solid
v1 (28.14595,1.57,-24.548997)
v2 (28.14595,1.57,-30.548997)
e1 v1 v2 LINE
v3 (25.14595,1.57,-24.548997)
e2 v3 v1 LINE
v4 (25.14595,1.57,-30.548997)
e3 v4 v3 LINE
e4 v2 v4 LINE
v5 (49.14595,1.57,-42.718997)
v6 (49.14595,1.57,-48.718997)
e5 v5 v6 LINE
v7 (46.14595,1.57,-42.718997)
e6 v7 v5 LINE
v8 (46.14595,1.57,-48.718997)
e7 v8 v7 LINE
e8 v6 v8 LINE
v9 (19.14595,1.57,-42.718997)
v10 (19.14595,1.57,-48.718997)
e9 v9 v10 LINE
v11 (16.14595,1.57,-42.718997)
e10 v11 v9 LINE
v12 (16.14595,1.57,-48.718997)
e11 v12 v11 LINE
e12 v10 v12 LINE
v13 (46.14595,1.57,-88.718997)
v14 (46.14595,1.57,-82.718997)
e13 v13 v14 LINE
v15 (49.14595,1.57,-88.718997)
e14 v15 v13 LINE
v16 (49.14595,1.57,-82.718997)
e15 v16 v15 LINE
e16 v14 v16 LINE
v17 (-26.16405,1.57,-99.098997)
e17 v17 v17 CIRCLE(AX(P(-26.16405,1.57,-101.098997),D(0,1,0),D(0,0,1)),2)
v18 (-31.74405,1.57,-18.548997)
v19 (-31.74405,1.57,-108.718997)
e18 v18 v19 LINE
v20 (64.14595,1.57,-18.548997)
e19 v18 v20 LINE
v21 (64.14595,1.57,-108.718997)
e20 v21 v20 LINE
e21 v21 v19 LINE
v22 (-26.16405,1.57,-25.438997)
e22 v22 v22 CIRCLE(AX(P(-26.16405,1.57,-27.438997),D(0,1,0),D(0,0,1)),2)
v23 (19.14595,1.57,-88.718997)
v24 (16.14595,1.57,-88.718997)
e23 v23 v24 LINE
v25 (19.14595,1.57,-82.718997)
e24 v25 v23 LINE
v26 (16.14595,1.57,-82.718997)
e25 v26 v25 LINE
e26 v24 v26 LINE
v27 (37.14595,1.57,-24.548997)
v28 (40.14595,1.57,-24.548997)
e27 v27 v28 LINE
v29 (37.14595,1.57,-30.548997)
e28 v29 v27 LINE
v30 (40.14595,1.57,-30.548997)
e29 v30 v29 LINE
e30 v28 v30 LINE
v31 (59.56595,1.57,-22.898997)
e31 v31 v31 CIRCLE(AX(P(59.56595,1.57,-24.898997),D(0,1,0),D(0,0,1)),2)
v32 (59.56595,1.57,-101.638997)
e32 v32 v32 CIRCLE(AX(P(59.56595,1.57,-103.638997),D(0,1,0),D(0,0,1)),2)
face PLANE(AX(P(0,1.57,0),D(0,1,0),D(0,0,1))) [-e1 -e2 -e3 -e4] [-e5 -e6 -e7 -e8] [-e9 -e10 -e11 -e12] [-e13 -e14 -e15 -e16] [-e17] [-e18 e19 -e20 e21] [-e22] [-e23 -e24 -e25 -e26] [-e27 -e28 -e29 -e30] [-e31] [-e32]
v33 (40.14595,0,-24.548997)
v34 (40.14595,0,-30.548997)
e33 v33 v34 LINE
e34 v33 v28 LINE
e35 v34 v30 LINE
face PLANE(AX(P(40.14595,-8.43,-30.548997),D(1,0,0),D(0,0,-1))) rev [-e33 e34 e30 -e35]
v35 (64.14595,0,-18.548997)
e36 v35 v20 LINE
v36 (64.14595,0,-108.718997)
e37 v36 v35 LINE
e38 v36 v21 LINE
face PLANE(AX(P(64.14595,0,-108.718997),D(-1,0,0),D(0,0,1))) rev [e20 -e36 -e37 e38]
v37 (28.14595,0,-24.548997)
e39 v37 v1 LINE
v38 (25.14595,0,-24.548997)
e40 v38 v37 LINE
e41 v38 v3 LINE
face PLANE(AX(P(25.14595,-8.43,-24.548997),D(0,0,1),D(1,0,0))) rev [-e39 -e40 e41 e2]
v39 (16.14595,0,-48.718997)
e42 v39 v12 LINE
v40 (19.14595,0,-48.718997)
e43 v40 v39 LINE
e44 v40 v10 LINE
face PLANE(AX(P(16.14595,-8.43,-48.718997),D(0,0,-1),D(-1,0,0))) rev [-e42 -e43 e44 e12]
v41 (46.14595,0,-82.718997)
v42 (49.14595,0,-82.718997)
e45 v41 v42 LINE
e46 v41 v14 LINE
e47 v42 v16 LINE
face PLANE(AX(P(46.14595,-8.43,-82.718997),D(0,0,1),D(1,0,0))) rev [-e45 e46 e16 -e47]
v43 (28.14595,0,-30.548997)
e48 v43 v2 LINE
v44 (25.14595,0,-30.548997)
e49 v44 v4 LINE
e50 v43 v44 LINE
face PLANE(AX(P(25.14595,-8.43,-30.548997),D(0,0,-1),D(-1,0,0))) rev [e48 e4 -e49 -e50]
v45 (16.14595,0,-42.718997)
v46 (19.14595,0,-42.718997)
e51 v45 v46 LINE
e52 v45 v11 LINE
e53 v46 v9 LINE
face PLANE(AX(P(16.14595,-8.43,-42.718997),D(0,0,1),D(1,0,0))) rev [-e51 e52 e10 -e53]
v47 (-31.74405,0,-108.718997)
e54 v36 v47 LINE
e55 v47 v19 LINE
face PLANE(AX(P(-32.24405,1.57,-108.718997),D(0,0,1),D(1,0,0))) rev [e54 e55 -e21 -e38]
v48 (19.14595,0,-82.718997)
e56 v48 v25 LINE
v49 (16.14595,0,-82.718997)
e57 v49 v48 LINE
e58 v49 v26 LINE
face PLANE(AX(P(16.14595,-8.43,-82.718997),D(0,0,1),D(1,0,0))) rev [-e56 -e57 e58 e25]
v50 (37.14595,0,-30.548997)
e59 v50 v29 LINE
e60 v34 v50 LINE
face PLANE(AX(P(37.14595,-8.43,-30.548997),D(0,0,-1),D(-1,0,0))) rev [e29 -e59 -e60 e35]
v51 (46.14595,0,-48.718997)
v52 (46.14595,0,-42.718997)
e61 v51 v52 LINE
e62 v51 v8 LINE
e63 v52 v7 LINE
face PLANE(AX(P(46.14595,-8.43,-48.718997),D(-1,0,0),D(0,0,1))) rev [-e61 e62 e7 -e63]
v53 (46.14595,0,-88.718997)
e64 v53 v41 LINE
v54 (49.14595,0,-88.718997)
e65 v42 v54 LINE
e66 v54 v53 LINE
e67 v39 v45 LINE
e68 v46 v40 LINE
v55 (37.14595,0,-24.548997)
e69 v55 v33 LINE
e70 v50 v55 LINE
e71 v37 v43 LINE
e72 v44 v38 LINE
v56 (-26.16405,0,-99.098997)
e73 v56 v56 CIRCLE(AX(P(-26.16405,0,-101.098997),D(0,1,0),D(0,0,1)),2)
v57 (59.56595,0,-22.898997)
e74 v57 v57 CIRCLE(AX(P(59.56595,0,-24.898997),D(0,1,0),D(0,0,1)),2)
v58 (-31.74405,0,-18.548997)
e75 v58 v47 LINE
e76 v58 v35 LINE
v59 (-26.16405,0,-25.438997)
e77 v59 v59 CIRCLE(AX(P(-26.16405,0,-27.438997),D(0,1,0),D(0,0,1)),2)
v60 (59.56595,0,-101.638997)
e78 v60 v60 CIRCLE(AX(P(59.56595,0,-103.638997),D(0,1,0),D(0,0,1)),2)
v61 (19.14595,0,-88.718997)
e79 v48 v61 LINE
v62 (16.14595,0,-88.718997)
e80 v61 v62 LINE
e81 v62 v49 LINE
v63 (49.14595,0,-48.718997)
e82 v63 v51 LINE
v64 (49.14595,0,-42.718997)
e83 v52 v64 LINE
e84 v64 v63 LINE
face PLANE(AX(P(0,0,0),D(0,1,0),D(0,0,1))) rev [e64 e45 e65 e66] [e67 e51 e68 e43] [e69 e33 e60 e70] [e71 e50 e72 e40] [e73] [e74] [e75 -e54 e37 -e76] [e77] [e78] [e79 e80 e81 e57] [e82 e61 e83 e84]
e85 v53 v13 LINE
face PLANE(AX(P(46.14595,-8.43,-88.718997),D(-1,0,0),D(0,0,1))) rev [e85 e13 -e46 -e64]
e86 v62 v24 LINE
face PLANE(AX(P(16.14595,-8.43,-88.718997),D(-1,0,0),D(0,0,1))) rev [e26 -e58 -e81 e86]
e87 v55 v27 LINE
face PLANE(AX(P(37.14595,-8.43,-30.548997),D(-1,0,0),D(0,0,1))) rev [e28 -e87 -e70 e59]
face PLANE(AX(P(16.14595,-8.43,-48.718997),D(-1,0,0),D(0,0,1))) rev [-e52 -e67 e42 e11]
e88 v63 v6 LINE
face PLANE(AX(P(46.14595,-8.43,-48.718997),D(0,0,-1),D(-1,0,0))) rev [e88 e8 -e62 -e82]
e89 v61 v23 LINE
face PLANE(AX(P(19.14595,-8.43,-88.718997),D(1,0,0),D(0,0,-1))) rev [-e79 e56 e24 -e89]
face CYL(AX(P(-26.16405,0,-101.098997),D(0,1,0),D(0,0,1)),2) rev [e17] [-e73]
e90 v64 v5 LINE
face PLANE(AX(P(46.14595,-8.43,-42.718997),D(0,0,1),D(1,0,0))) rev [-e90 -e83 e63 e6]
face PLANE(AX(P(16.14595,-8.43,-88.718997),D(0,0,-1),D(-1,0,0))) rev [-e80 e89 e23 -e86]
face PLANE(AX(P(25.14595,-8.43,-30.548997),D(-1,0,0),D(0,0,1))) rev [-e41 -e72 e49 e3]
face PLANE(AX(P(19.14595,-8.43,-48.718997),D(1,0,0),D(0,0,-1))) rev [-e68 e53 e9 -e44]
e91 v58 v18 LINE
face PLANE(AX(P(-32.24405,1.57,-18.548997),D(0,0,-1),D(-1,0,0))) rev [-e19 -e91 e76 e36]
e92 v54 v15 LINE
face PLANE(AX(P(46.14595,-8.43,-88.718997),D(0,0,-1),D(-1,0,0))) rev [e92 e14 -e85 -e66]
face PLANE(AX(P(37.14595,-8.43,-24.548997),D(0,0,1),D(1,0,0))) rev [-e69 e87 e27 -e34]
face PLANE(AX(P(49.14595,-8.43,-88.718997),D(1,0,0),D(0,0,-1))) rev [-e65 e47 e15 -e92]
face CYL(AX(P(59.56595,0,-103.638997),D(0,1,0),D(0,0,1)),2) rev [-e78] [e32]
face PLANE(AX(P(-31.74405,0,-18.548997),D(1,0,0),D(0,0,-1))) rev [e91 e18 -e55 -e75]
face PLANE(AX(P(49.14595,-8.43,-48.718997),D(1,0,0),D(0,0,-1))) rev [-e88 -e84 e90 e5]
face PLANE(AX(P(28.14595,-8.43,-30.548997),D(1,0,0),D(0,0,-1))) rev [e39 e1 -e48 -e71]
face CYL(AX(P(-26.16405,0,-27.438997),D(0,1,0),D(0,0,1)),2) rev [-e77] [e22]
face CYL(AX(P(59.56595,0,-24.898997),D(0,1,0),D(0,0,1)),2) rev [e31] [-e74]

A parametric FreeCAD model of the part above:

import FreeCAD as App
import Part
import Sketcher

V = App.Vector
Q = App.Units.Quantity


def add_polygon(sketch, points):
    """Adds a closed chain of lines whose ends are joined by coincident constraints."""
    first, n = sketch.GeometryCount, len(points)
    for a, b in zip(points, points[1:] + points[:1]):
        sketch.addGeometry(Part.LineSegment(App.Vector(*a, 0), App.Vector(*b, 0)), False)
    for i in range(n):
        sketch.addConstraint(Sketcher.Constraint("Coincident", first + i, 2, first + (i + 1) % n, 1))

doc = App.newDocument("Part")
body = doc.addObject("PartDesign::Body", "Body")

sketch1 = doc.addObject("Sketcher::SketchObject", "Sketch")
body.addObject(sketch1)
sketch1.AttachmentSupport = (doc.XZ_Plane, [""])
sketch1.MapMode = "FlatFace"
add_polygon(sketch1, [(-32, -109), (-32, -19), (65, -19), (65, -109)])
sketch1.addConstraint([
    Sketcher.Constraint("Vertical", 0),
    Sketcher.Constraint("Horizontal", 1),
    Sketcher.Constraint("Vertical", 2),
    Sketcher.Constraint("Horizontal", 3),
    Sketcher.Constraint("DistanceX", 1, 1, 1, 2, Q("96.89 mm")),
    Sketcher.Constraint("DistanceY", 0, 1, 0, 2, Q("90.17 mm")),
    Sketcher.Constraint("DistanceX", 0, 2, -1, 1, Q("32.24405 mm")),
    Sketcher.Constraint("DistanceY", 0, 2, -1, 1, Q("18.548997 mm")),
])
pad1 = doc.addObject("PartDesign::Pad", "Pad")
body.addObject(pad1)
pad1.Profile = sketch1
pad1.Length = 1.57
pad1.Reversed = True

sketch2 = doc.addObject("Sketcher::SketchObject", "Sketch001")
body.addObject(sketch2)
sketch2.AttachmentSupport = (doc.XZ_Plane, [""])
sketch2.MapMode = "FlatFace"
sketch2.AttachmentOffset = App.Placement(V(0, 0, -1.57), App.Rotation())
sketch2.addGeometry([
    Part.Circle(V(59.6, -24.9, 0), V(0, 0, 1), 2),
    Part.Circle(V(-26.2, -27.4, 0), V(0, 0, 1), 2),
    Part.Circle(V(-26.2, -101.1, 0), V(0, 0, 1), 2),
    Part.Circle(V(59.6, -103.6, 0), V(0, 0, 1), 2),
], False)
sketch2.addConstraint([
    Sketcher.Constraint("Equal", 0, 1),
    Sketcher.Constraint("Equal", 1, 2),
    Sketcher.Constraint("Equal", 2, 3),
    Sketcher.Constraint("Vertical", 1, 3, 2, 3),
    Sketcher.Constraint("Vertical", 0, 3, 3, 3),
    Sketcher.Constraint("Diameter", 0, Q("4 mm")),
    Sketcher.Constraint("DistanceY", 2, 3, 0, 3, Q("76.2 mm")),
    Sketcher.Constraint("DistanceY", 3, 3, 1, 3, Q("76.2 mm")),
    Sketcher.Constraint("DistanceX", 1, 3, 0, 3, Q("85.73 mm")),
    Sketcher.Constraint("DistanceY", 1, 3, 0, 3, Q("2.54 mm")),
    Sketcher.Constraint("DistanceX", -1, 1, 0, 3, Q("59.56595 mm")),
    Sketcher.Constraint("DistanceY", 0, 3, -1, 1, Q("24.898997 mm")),
])
pocket1 = doc.addObject("PartDesign::Pocket", "Pocket")
body.addObject(pocket1)
pocket1.Profile = sketch2
pocket1.Length = 1.57
pocket1.Reversed = True

sketch3 = doc.addObject("Sketcher::SketchObject", "Sketch002")
body.addObject(sketch3)
sketch3.AttachmentSupport = (doc.XZ_Plane, [""])
sketch3.MapMode = "FlatFace"
sketch3.AttachmentOffset = App.Placement(V(0, 0, -1.57), App.Rotation())
add_polygon(sketch3, [(-32.2, -108.7), (-32.2, -18.5), (-31.7, -18.5), (-31.7, -108.7)])
add_polygon(sketch3, [(64.1, -108.7), (64.1, -18.5), (64.6, -18.5), (64.6, -108.7)])
sketch3.addConstraint([
    Sketcher.Constraint("Vertical", 0),
    Sketcher.Constraint("Horizontal", 1),
    Sketcher.Constraint("Vertical", 2),
    Sketcher.Constraint("Horizontal", 3),
    Sketcher.Constraint("Vertical", 4),
    Sketcher.Constraint("Horizontal", 5),
    Sketcher.Constraint("Vertical", 6),
    Sketcher.Constraint("Horizontal", 7),
    Sketcher.Constraint("Horizontal", 1, 2, 4, 2),
    Sketcher.Constraint("Horizontal", 3, 2, 6, 2),
    Sketcher.Constraint("Equal", 3, 5),
    Sketcher.Constraint("DistanceX", 1, 1, 1, 2, Q("0.5 mm")),
    Sketcher.Constraint("DistanceY", 0, 1, 0, 2, Q("90.17 mm")),
    Sketcher.Constraint("DistanceX", 1, 2, 4, 2, Q("95.89 mm")),
    Sketcher.Constraint("DistanceX", 0, 2, -1, 1, Q("32.24405 mm")),
    Sketcher.Constraint("DistanceY", 0, 2, -1, 1, Q("18.548997 mm")),
])
pocket2 = doc.addObject("PartDesign::Pocket", "Pocket001")
body.addObject(pocket2)
pocket2.Profile = sketch3
pocket2.Type = "ThroughAll"
pocket2.Reversed = True

sketch4 = doc.addObject("Sketcher::SketchObject", "Sketch003")
body.addObject(sketch4)
sketch4.AttachmentSupport = (doc.XZ_Plane, [""])
sketch4.MapMode = "FlatFace"
sketch4.AttachmentOffset = App.Placement(V(0, 0, -1.57), App.Rotation())
add_polygon(sketch4, [(16.1, -88.7), (16.1, -82.7), (19.1, -82.7), (19.1, -88.7)])
add_polygon(sketch4, [(46.1, -88.7), (46.1, -82.7), (49.1, -82.7), (49.1, -88.7)])
add_polygon(sketch4, [(16.1, -48.7), (16.1, -42.7), (19.1, -42.7), (19.1, -48.7)])
add_polygon(sketch4, [(46.1, -48.7), (46.1, -42.7), (49.1, -42.7), (49.1, -48.7)])
add_polygon(sketch4, [(25.1, -30.5), (25.1, -24.5), (28.1, -24.5), (28.1, -30.5)])
add_polygon(sketch4, [(37.1, -30.5), (37.1, -24.5), (40.1, -24.5), (40.1, -30.5)])
sketch4.addConstraint([
    Sketcher.Constraint("Vertical", 0),
    Sketcher.Constraint("Horizontal", 1),
    Sketcher.Constraint("Vertical", 2),
    Sketcher.Constraint("Horizontal", 3),
    Sketcher.Constraint("Vertical", 4),
    Sketcher.Constraint("Horizontal", 5),
    Sketcher.Constraint("Vertical", 6),
    Sketcher.Constraint("Horizontal", 7),
    Sketcher.Constraint("Vertical", 8),
    Sketcher.Constraint("Horizontal", 9),
    Sketcher.Constraint("Vertical", 10),
    Sketcher.Constraint("Horizontal", 11),
    Sketcher.Constraint("Vertical", 12),
    Sketcher.Constraint("Horizontal", 13),
    Sketcher.Constraint("Vertical", 14),
    Sketcher.Constraint("Horizontal", 15),
    Sketcher.Constraint("Vertical", 16),
    Sketcher.Constraint("Horizontal", 17),
    Sketcher.Constraint("Vertical", 18),
    Sketcher.Constraint("Horizontal", 19),
    Sketcher.Constraint("Vertical", 20),
    Sketcher.Constraint("Horizontal", 21),
    Sketcher.Constraint("Vertical", 22),
    Sketcher.Constraint("Horizontal", 23),
    Sketcher.Constraint("Horizontal", 1, 2, 4, 2),
    Sketcher.Constraint("Horizontal", 3, 2, 6, 2),
    Sketcher.Constraint("Horizontal", 9, 2, 12, 2),
    Sketcher.Constraint("Horizontal", 11, 2, 14, 2),
    Sketcher.Constraint("Horizontal", 17, 2, 20, 2),
    Sketcher.Constraint("Horizontal", 19, 2, 22, 2),
    Sketcher.Constraint("Vertical", 3, 2, 8, 2),
    Sketcher.Constraint("Vertical", 2, 2, 9, 2),
    Sketcher.Constraint("Vertical", 7, 2, 12, 2),
    Sketcher.Constraint("Vertical", 6, 2, 13, 2),
    Sketcher.Constraint("Equal", 3, 5),
    Sketcher.Constraint("Equal", 15, 17),
    Sketcher.Constraint("Equal", 19, 21),
    Sketcher.Constraint("Equal", 6, 8),
    Sketcher.Constraint("Equal", 14, 16),
    Sketcher.Constraint("DistanceX", 1, 1, 1, 2, Q("3 mm")),
    Sketcher.Constraint("DistanceY", 0, 1, 0, 2, Q("6 mm")),
    Sketcher.Constraint("DistanceX", 1, 2, 4, 2, Q("27 mm")),
    Sketcher.Constraint("DistanceY", 0, 2, 8, 2, Q("40 mm")),
    Sketcher.Constraint("DistanceX", 9, 2, 16, 2, Q("6 mm")),
    Sketcher.Constraint("DistanceX", 17, 2, 20, 2, Q("9 mm")),
    Sketcher.Constraint("DistanceY", 9, 2, 16, 2, Q("18.17 mm")),
    Sketcher.Constraint("DistanceX", -1, 1, 0, 2, Q("16.14595 mm")),
    Sketcher.Constraint("DistanceY", 0, 2, -1, 1, Q("82.718997 mm")),
])
pocket3 = doc.addObject("PartDesign::Pocket", "Pocket002")
body.addObject(pocket3)
pocket3.Profile = sketch4
pocket3.Length = 10
pocket3.Reversed = True

doc.recompute()
